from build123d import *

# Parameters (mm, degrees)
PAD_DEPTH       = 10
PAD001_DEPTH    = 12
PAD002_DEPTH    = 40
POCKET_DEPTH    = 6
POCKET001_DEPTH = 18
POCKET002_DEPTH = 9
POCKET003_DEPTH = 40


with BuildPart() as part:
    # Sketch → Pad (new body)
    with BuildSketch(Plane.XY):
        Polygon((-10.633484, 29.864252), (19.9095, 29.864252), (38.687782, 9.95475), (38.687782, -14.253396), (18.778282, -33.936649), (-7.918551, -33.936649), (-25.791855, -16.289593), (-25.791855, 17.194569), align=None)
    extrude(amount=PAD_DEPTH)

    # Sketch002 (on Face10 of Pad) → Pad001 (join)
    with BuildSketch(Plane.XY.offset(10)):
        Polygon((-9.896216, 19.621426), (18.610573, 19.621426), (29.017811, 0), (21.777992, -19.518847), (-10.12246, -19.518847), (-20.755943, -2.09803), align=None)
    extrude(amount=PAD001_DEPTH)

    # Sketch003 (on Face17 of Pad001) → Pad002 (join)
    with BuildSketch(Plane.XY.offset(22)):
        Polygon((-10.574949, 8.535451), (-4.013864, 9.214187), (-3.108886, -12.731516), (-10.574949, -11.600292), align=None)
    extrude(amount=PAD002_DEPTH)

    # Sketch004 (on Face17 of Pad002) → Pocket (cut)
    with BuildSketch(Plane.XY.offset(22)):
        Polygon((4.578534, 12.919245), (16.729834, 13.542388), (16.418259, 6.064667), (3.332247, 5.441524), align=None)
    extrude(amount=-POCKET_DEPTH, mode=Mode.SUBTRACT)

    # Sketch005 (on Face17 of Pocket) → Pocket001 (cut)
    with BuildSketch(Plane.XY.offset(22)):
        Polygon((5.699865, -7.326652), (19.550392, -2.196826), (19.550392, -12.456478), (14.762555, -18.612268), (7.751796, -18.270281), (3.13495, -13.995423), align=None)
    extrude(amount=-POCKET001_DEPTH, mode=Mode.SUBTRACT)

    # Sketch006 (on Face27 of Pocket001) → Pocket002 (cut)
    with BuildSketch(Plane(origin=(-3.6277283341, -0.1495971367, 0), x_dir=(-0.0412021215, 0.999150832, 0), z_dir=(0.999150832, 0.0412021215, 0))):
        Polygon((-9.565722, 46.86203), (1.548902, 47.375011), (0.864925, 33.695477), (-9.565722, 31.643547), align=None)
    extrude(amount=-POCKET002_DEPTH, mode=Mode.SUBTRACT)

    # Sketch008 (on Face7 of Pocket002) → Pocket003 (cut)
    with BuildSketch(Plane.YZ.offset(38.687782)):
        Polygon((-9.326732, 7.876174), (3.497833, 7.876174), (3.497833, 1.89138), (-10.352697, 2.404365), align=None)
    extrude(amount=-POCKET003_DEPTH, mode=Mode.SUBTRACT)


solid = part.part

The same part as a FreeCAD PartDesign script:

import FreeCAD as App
import Part
import Sketcher


def add_polygon(sketch, points):
    """Adds a closed chain of lines whose ends are joined by coincident constraints."""
    first, n = sketch.GeometryCount, len(points)
    for a, b in zip(points, points[1:] + points[:1]):
        sketch.addGeometry(Part.LineSegment(App.Vector(*a, 0), App.Vector(*b, 0)), False)
    for i in range(n):
        sketch.addConstraint(Sketcher.Constraint("Coincident", first + i, 2, first + (i + 1) % n, 1))

doc = App.newDocument("Part")
body = doc.addObject("PartDesign::Body", "Body")

sketch1 = body.newObject("Sketcher::SketchObject", "Sketch")
sketch1.AttachmentSupport = (doc.getObject("XY_Plane"), [""])
sketch1.MapMode = "FlatFace"
add_polygon(sketch1, [(20, 30), (-11, 30), (-26, 17), (-26, -16), (-8, -34), (19, -34), (39, -14), (39, 10)])
sketch1.addConstraint([
    Sketcher.Constraint("Horizontal", 0),
    Sketcher.Constraint("Vertical", 2),
    Sketcher.Constraint("Horizontal", 4),
    Sketcher.Constraint("Vertical", 6),
    Sketcher.Constraint("DistanceY", 2, 2, 2, 1, 33.484162),
    Sketcher.Constraint("DistanceX", -1, 1, 7, 2, 19.9095),
    Sketcher.Constraint("DistanceY", 3, 2, 0, 2, 63.800901),
    Sketcher.Constraint("DistanceX", 4, 2, 5, 2, 19.9095),
    Sketcher.Constraint("DistanceY", 4, 2, 6, 2, 43.891399),
    Sketcher.Constraint("Distance", 5, 27.996761),
    Sketcher.Constraint("DistanceX", 0, 2, 0, 1, 30.542984),
    Sketcher.Constraint("DistanceX", 4, 1, 4, 2, 26.696833),
    Sketcher.Constraint("DistanceY", -1, 1, 1, 2, 17.194569),
    Sketcher.Constraint("DistanceX", 3, 2, -1, 1, 7.918551),
    Sketcher.Constraint("DistanceY", 3, 2, -1, 1, 33.936649),
    Sketcher.Constraint("DistanceX", 1, 2, 0, 2, 15.158371),
])
pad1 = body.newObject("PartDesign::Pad", "Pad")
pad1.Profile = sketch1
pad1.Length = 10

sketch2 = body.newObject("Sketcher::SketchObject", "Sketch001")
sketch2.AttachmentSupport = (doc.getObject("XY_Plane"), [""])
sketch2.MapMode = "FlatFace"
sketch2.AttachmentOffset = App.Placement(App.Vector(0, 0, 10), App.Rotation())
add_polygon(sketch2, [(19, 20), (-10, 20), (-21, -2), (-10, -20), (22, -20), (29, 0)])
sketch2.addConstraint([
    Sketcher.Constraint("Horizontal", 0),
    Sketcher.Constraint("Horizontal", 3),
    Sketcher.Constraint("PointOnObject", 4, 2, -1),
    Sketcher.Constraint("Distance", 2, 20.409699),
    Sketcher.Constraint("DistanceX", 0, 2, 0, 1, 28.506789),
    Sketcher.Constraint("Distance", 1, 24.28309),
    Sketcher.Constraint("Distance", 4, 20.81827),
    Sketcher.Constraint("DistanceX", 3, 1, 3, 2, 31.900452),
    Sketcher.Constraint("DistanceY", 1, 2, -1, 1, 2.09803),
    Sketcher.Constraint("DistanceX", 2, 2, -1, 1, 10.12246),
    Sketcher.Constraint("DistanceX", -1, 1, 4, 2, 29.017811),
    Sketcher.Constraint("DistanceX", 0, 2, 3, 2, 31.674208),
])
pad2 = body.newObject("PartDesign::Pad", "Pad001")
pad2.Profile = sketch2
pad2.Length = 12

sketch3 = body.newObject("Sketcher::SketchObject", "Sketch002")
sketch3.AttachmentSupport = (doc.getObject("XY_Plane"), [""])
sketch3.MapMode = "FlatFace"
sketch3.AttachmentOffset = App.Placement(App.Vector(0, 0, 22), App.Rotation())
add_polygon(sketch3, [(-4, 9), (-11, 9), (-11, -12), (-3, -13)])
sketch3.addConstraint([
    Sketcher.Constraint("Vertical", 1),
    Sketcher.Constraint("Distance", 0, 6.596099),
    Sketcher.Constraint("DistanceY", 1, 2, 1, 1, 20.135743),
    Sketcher.Constraint("DistanceX", 0, 2, -1, 1, 10.574949),
    Sketcher.Constraint("DistanceY", -1, 1, 0, 2, 8.535451),
    Sketcher.Constraint("DistanceY", 1, 2, 3, 2, 20.814479),
    Sketcher.Constraint("Distance", 2, 7.551276),
    Sketcher.Constraint("Distance", 3, 21.964354),
])
pad3 = body.newObject("PartDesign::Pad", "Pad002")
pad3.Profile = sketch3
pad3.Length = 40

sketch4 = body.newObject("Sketcher::SketchObject", "Sketch003")
sketch4.AttachmentSupport = (doc.getObject("XY_Plane"), [""])
sketch4.MapMode = "FlatFace"
sketch4.AttachmentOffset = App.Placement(App.Vector(0, 0, 22), App.Rotation())
add_polygon(sketch4, [(17, 14), (5, 13), (3, 5), (16, 6)])
sketch4.addConstraint([
    Sketcher.Constraint("DistanceX", 0, 2, 3, 2, 12.1513),
    Sketcher.Constraint("Distance", 2, 13.10084),
    Sketcher.Constraint("Distance", 3, 7.484209),
    Sketcher.Constraint("DistanceX", -1, 1, 2, 2, 16.418259),
    Sketcher.Constraint("DistanceY", -1, 1, 3, 2, 13.542388),
    Sketcher.Constraint("DistanceY", 1, 2, 0, 2, 7.477721),
    Sketcher.Constraint("DistanceX", 1, 2, 2, 2, 13.086012),
    Sketcher.Constraint("DistanceY", 2, 2, 3, 2, 7.477721),
])
pocket1 = body.newObject("PartDesign::Pocket", "Pocket")
pocket1.Profile = sketch4
pocket1.Length = 6

sketch5 = body.newObject("Sketcher::SketchObject", "Sketch004")
sketch5.AttachmentSupport = (doc.getObject("XY_Plane"), [""])
sketch5.MapMode = "FlatFace"
sketch5.AttachmentOffset = App.Placement(App.Vector(0, 0, 22), App.Rotation())
add_polygon(sketch5, [(20, -2), (6, -7), (3, -14), (8, -18), (15, -19), (20, -12)])
sketch5.addConstraint([
    Sketcher.Constraint("Vertical", 5),
    Sketcher.Constraint("Distance", 1, 7.145019),
    Sketcher.Constraint("DistanceY", 5, 1, 5, 2, 10.259652),
    Sketcher.Constraint("DistanceX", -1, 1, 1, 2, 3.13495),
    Sketcher.Constraint("DistanceY", 2, 2, -1, 1, 18.270281),
    Sketcher.Constraint("DistanceY", 3, 2, -1, 1, 18.612268),
    Sketcher.Constraint("DistanceX", -1, 1, 4, 2, 19.550392),
    Sketcher.Constraint("DistanceY", 1, 2, 0, 2, 6.668771),
    Sketcher.Constraint("DistanceX", 0, 2, 2, 2, 2.051931),
    Sketcher.Constraint("DistanceY", 2, 2, 0, 2, 10.943629),
    Sketcher.Constraint("DistanceX", 2, 2, 3, 2, 7.010759),
    Sketcher.Constraint("DistanceY", 3, 2, 4, 2, 6.15579),
])
pocket2 = body.newObject("PartDesign::Pocket", "Pocket001")
pocket2.Profile = sketch5
pocket2.Length = 18

sketch6 = body.newObject("Sketcher::SketchObject", "Sketch005")
sketch6.Placement = App.Placement(App.Vector(-3.627728, -0.149597, 0), App.Rotation(App.Vector(-0.041202122, 0.999150832, 0), App.Vector(0, 0, 1), App.Vector(0.999150832, 0.041202122, 0), "ZXY"))
add_polygon(sketch6, [(2, 47), (-10, 47), (-10, 32), (1, 34)])
sketch6.addConstraint([
    Sketcher.Constraint("Vertical", 1),
    Sketcher.Constraint("Distance", 2, 10.63056),
    Sketcher.Constraint("DistanceY", 1, 2, 1, 1, 15.218483),
    Sketcher.Constraint("DistanceX", 0, 2, -1, 1, 9.565722),
    Sketcher.Constraint("DistanceY", -1, 1, 0, 2, 46.86203),
    Sketcher.Constraint("DistanceY", -1, 1, 3, 2, 47.375011),
    Sketcher.Constraint("DistanceY", 1, 2, 2, 2, 2.05193),
    Sketcher.Constraint("Distance", 0, 11.126456),
])
pocket3 = body.newObject("PartDesign::Pocket", "Pocket002")
pocket3.Profile = sketch6
pocket3.Length = 9

sketch7 = body.newObject("Sketcher::SketchObject", "Sketch006")
sketch7.AttachmentSupport = (doc.getObject("YZ_Plane"), [""])
sketch7.MapMode = "FlatFace"
sketch7.AttachmentOffset = App.Placement(App.Vector(0, 0, 38.687782), App.Rotation())
add_polygon(sketch7, [(3, 8), (-9, 8), (-10, 2), (3, 2)])
sketch7.addConstraint([
    Sketcher.Constraint("Horizontal", 0),
    Sketcher.Constraint("Vertical", 3),
    Sketcher.Constraint("DistanceX", 0, 2, 0, 1, 12.824565),
    Sketcher.Constraint("DistanceY", 3, 1, 3, 2, 5.984794),
    Sketcher.Constraint("DistanceY", -1, 1, 2, 2, 1.89138),
    Sketcher.Constraint("DistanceY", 1, 2, 0, 2, 5.471809),
    Sketcher.Constraint("DistanceX", 1, 2, 2, 2, 13.85053),
    Sketcher.Constraint("DistanceX", 0, 2, -1, 1, 9.326732),
])
pocket4 = body.newObject("PartDesign::Pocket", "Pocket003")
pocket4.Profile = sketch7
pocket4.Length = 40

doc.recompute()
